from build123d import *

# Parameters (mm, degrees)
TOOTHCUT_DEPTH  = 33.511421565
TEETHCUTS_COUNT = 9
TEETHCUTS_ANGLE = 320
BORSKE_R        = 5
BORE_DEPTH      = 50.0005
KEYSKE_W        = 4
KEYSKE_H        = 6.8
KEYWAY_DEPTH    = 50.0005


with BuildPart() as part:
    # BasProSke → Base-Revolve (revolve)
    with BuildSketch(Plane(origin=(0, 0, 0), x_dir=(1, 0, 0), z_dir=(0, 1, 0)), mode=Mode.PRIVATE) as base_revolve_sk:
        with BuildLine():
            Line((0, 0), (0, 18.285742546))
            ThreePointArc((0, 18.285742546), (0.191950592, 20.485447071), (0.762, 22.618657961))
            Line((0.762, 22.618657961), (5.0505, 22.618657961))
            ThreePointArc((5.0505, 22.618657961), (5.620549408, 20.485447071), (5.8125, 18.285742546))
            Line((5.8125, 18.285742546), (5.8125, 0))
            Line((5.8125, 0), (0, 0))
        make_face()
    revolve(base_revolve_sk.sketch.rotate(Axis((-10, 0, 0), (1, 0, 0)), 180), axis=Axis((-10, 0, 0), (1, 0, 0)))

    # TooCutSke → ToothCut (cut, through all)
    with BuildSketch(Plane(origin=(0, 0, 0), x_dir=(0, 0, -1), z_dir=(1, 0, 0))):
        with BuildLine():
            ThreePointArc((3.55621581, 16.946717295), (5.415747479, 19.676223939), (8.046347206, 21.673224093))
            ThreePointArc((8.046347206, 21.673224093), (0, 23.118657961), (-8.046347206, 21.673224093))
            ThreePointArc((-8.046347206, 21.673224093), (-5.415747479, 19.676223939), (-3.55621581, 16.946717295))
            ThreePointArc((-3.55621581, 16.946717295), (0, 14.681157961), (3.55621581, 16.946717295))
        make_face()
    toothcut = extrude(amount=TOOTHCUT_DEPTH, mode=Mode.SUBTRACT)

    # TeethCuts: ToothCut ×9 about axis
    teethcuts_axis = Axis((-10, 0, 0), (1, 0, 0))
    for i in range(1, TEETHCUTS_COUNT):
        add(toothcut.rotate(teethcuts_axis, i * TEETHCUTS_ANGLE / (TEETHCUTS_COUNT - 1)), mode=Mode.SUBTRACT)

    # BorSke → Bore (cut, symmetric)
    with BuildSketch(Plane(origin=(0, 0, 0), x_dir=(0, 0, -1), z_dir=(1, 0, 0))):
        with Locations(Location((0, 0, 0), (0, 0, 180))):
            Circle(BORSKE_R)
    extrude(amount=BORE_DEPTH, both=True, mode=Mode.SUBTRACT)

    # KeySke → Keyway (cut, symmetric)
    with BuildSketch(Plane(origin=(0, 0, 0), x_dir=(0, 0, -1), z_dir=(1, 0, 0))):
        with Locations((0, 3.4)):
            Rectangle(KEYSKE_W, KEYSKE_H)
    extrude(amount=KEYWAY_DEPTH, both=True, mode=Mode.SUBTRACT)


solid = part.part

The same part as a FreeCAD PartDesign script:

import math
import FreeCAD as App
import Part
import Sketcher

V = App.Vector

doc = App.newDocument("Part")
body = doc.addObject("PartDesign::Body", "Body")

# Sketch on XZ plane
sketch1 = doc.addObject("Sketcher::SketchObject", "Sketch")
body.addObject(sketch1)
sketch1.AttachmentSupport = (doc.XZ_Plane, [""])
sketch1.MapMode = "FlatFace"
sketch1.addGeometry(Part.LineSegment(V(0, -18.3, 0), V(0, 0, 0)), False)
sketch1.addGeometry(Part.LineSegment(V(0, 0, 0), V(5.8, 0, 0)), False)
sketch1.addGeometry(Part.LineSegment(V(5.8, 0, 0), V(5.8, -18.3, 0)), False)
sketch1.addGeometry(Part.ArcOfCircle(Part.Circle(V(-6.9, -18.3, 0), V(0, 0, 1), 12.7), math.radians(-19.95), math.radians(0)), False)
sketch1.addGeometry(Part.LineSegment(V(5.1, -22.6, 0), V(0.8, -22.6, 0)), False)
sketch1.addGeometry(Part.ArcOfCircle(Part.Circle(V(12.7, -18.3, 0), V(0, 0, 1), 12.7), math.radians(-180), math.radians(-160.05)), False)
sketch1.addConstraint(Sketcher.Constraint("Coincident", 0, 2, 1, 1))
sketch1.addConstraint(Sketcher.Constraint("Coincident", 1, 2, 2, 1))
sketch1.addConstraint(Sketcher.Constraint("Tangent", 2, 2, 3, 2))
sketch1.addConstraint(Sketcher.Constraint("Coincident", 3, 1, 4, 1))
sketch1.addConstraint(Sketcher.Constraint("Coincident", 4, 2, 5, 2))
sketch1.addConstraint(Sketcher.Constraint("Tangent", 5, 1, 0, 1))
sketch1.addConstraint(Sketcher.Constraint("Vertical", 0))
sketch1.addConstraint(Sketcher.Constraint("Horizontal", 1))
sketch1.addConstraint(Sketcher.Constraint("Vertical", 2))
sketch1.addConstraint(Sketcher.Constraint("Horizontal", 4))
sketch1.addConstraint(Sketcher.Constraint("Coincident", 0, 2, -1, 1))
sketch1.addConstraint(Sketcher.Constraint("Equal", 3, 5))
sketch1.addConstraint(Sketcher.Constraint("Horizontal", 3, 3, 5, 3))
sketch1.addConstraint(Sketcher.Constraint("Radius", 3, 12.7))
sketch1.addConstraint(Sketcher.Constraint("DistanceX", 1, 1, 1, 2, 5.8125))
sketch1.addConstraint(Sketcher.Constraint("DistanceX", 4, 2, 4, 1, 4.2885))
sketch1.addConstraint(Sketcher.Constraint("DistanceY", 0, 1, 0, 2, 18.285743))
revolution = doc.addObject("PartDesign::Revolution", "Revolution")
body.addObject(revolution)
revolution.Profile = sketch1
revolution.ReferenceAxis = (sketch1, ["H_Axis"])
revolution.Angle = 360

# Sketch on YZ plane
sketch2 = doc.addObject("Sketcher::SketchObject", "Sketch001")
body.addObject(sketch2)
sketch2.AttachmentSupport = (doc.YZ_Plane, [""])
sketch2.MapMode = "FlatFace"
sketch2.addGeometry(Part.ArcOfCircle(Part.Circle(V(12.6, -12.9, 0), V(0, 0, 1), 10.3), math.radians(28), math.radians(65)), False)
sketch2.addGeometry(Part.ArcOfCircle(Part.Circle(V(0, 0, 0), V(0, 0, 1), 23.1), math.radians(-20), math.radians(20)), False)
sketch2.addGeometry(Part.ArcOfCircle(Part.Circle(V(12.6, 12.9, 0), V(0, 0, 1), 10.3), math.radians(-65), math.radians(-28)), False)
sketch2.addGeometry(Part.ArcOfCircle(Part.Circle(V(18.6, 0, 0), V(0, 0, 1), 3.9), math.radians(115), math.radians(245)), False)
sketch2.addConstraint(Sketcher.Constraint("Coincident", 0, 1, 1, 1))
sketch2.addConstraint(Sketcher.Constraint("Coincident", 1, 2, 2, 2))
sketch2.addConstraint(Sketcher.Constraint("Tangent", 2, 1, 3, 1))
sketch2.addConstraint(Sketcher.Constraint("Tangent", 3, 2, 0, 2))
sketch2.addConstraint(Sketcher.Constraint("Coincident", 1, 3, -1, 1))
sketch2.addConstraint(Sketcher.Constraint("Equal", 0, 2))
sketch2.addConstraint(Sketcher.Constraint("Symmetric", 0, 3, 2, 3, -1))
sketch2.addConstraint(Sketcher.Constraint("Radius", 0, 10.2564))
sketch2.addConstraint(Sketcher.Constraint("Radius", 3, 3.92385))
sketch2.addConstraint(Sketcher.Constraint("Radius", 1, 23.118658))
sketch2.addConstraint(Sketcher.Constraint("DistanceY", 0, 3, -1, 1, 12.851671))
sketch2.addConstraint(Sketcher.Constraint("DistanceX", 0, 3, 0, 1, 9.061049))
pocket1 = doc.addObject("PartDesign::Pocket", "Pocket")
body.addObject(pocket1)
pocket1.Profile = sketch2
pocket1.Type = "ThroughAll"
pocket1.Reversed = True
doc.recompute()

polarpattern = doc.addObject("PartDesign::PolarPattern", "PolarPattern")
body.addObject(polarpattern)
polarpattern.Originals = [pocket1]
polarpattern.Axis = (doc.X_Axis, [""])
polarpattern.Angle = 360
polarpattern.Occurrences = 9
body.Tip = polarpattern

# Sketch on YZ plane
sketch3 = doc.addObject("Sketcher::SketchObject", "Sketch002")
body.addObject(sketch3)
sketch3.AttachmentSupport = (doc.YZ_Plane, [""])
sketch3.MapMode = "FlatFace"
sketch3.addGeometry(Part.Circle(V(0, 0, 0), V(0, 0, 1), 5), False)
sketch3.addConstraint(Sketcher.Constraint("Coincident", 0, 3, -1, 1))
sketch3.addConstraint(Sketcher.Constraint("Diameter", 0, 10.0))
pocket2 = doc.addObject("PartDesign::Pocket", "Pocket001")
body.addObject(pocket2)
pocket2.Profile = sketch3
pocket2.Length = 100.001
pocket2.Midplane = True

# Sketch on YZ plane
sketch4 = doc.addObject("Sketcher::SketchObject", "Sketch003")
body.addObject(sketch4)
sketch4.AttachmentSupport = (doc.YZ_Plane, [""])
sketch4.MapMode = "FlatFace"
sketch4.addGeometry(Part.LineSegment(V(6.8, 2, 0), V(0, 2, 0)), False)
sketch4.addGeometry(Part.LineSegment(V(0, 2, 0), V(0, -2, 0)), False)
sketch4.addGeometry(Part.LineSegment(V(0, -2, 0), V(6.8, -2, 0)), False)
sketch4.addGeometry(Part.LineSegment(V(6.8, -2, 0), V(6.8, 2, 0)), False)
sketch4.addConstraint(Sketcher.Constraint("Coincident", 0, 2, 1, 1))
sketch4.addConstraint(Sketcher.Constraint("Coincident", 1, 2, 2, 1))
sketch4.addConstraint(Sketcher.Constraint("Coincident", 2, 2, 3, 1))
sketch4.addConstraint(Sketcher.Constraint("Coincident", 3, 2, 0, 1))
sketch4.addConstraint(Sketcher.Constraint("Horizontal", 0))
sketch4.addConstraint(Sketcher.Constraint("Vertical", 1))
sketch4.addConstraint(Sketcher.Constraint("Horizontal", 2))
sketch4.addConstraint(Sketcher.Constraint("Vertical", 3))
sketch4.addConstraint(Sketcher.Constraint("Symmetric", 0, 2, 1, 2, -1, 1))
sketch4.addConstraint(Sketcher.Constraint("DistanceY", 1, 2, 1, 1, 4.0))
sketch4.addConstraint(Sketcher.Constraint("DistanceX", 0, 2, 0, 1, 6.8))
pocket3 = doc.addObject("PartDesign::Pocket", "Pocket002")
body.addObject(pocket3)
pocket3.Profile = sketch4
pocket3.Length = 100.001
pocket3.Midplane = True

doc.recompute()
